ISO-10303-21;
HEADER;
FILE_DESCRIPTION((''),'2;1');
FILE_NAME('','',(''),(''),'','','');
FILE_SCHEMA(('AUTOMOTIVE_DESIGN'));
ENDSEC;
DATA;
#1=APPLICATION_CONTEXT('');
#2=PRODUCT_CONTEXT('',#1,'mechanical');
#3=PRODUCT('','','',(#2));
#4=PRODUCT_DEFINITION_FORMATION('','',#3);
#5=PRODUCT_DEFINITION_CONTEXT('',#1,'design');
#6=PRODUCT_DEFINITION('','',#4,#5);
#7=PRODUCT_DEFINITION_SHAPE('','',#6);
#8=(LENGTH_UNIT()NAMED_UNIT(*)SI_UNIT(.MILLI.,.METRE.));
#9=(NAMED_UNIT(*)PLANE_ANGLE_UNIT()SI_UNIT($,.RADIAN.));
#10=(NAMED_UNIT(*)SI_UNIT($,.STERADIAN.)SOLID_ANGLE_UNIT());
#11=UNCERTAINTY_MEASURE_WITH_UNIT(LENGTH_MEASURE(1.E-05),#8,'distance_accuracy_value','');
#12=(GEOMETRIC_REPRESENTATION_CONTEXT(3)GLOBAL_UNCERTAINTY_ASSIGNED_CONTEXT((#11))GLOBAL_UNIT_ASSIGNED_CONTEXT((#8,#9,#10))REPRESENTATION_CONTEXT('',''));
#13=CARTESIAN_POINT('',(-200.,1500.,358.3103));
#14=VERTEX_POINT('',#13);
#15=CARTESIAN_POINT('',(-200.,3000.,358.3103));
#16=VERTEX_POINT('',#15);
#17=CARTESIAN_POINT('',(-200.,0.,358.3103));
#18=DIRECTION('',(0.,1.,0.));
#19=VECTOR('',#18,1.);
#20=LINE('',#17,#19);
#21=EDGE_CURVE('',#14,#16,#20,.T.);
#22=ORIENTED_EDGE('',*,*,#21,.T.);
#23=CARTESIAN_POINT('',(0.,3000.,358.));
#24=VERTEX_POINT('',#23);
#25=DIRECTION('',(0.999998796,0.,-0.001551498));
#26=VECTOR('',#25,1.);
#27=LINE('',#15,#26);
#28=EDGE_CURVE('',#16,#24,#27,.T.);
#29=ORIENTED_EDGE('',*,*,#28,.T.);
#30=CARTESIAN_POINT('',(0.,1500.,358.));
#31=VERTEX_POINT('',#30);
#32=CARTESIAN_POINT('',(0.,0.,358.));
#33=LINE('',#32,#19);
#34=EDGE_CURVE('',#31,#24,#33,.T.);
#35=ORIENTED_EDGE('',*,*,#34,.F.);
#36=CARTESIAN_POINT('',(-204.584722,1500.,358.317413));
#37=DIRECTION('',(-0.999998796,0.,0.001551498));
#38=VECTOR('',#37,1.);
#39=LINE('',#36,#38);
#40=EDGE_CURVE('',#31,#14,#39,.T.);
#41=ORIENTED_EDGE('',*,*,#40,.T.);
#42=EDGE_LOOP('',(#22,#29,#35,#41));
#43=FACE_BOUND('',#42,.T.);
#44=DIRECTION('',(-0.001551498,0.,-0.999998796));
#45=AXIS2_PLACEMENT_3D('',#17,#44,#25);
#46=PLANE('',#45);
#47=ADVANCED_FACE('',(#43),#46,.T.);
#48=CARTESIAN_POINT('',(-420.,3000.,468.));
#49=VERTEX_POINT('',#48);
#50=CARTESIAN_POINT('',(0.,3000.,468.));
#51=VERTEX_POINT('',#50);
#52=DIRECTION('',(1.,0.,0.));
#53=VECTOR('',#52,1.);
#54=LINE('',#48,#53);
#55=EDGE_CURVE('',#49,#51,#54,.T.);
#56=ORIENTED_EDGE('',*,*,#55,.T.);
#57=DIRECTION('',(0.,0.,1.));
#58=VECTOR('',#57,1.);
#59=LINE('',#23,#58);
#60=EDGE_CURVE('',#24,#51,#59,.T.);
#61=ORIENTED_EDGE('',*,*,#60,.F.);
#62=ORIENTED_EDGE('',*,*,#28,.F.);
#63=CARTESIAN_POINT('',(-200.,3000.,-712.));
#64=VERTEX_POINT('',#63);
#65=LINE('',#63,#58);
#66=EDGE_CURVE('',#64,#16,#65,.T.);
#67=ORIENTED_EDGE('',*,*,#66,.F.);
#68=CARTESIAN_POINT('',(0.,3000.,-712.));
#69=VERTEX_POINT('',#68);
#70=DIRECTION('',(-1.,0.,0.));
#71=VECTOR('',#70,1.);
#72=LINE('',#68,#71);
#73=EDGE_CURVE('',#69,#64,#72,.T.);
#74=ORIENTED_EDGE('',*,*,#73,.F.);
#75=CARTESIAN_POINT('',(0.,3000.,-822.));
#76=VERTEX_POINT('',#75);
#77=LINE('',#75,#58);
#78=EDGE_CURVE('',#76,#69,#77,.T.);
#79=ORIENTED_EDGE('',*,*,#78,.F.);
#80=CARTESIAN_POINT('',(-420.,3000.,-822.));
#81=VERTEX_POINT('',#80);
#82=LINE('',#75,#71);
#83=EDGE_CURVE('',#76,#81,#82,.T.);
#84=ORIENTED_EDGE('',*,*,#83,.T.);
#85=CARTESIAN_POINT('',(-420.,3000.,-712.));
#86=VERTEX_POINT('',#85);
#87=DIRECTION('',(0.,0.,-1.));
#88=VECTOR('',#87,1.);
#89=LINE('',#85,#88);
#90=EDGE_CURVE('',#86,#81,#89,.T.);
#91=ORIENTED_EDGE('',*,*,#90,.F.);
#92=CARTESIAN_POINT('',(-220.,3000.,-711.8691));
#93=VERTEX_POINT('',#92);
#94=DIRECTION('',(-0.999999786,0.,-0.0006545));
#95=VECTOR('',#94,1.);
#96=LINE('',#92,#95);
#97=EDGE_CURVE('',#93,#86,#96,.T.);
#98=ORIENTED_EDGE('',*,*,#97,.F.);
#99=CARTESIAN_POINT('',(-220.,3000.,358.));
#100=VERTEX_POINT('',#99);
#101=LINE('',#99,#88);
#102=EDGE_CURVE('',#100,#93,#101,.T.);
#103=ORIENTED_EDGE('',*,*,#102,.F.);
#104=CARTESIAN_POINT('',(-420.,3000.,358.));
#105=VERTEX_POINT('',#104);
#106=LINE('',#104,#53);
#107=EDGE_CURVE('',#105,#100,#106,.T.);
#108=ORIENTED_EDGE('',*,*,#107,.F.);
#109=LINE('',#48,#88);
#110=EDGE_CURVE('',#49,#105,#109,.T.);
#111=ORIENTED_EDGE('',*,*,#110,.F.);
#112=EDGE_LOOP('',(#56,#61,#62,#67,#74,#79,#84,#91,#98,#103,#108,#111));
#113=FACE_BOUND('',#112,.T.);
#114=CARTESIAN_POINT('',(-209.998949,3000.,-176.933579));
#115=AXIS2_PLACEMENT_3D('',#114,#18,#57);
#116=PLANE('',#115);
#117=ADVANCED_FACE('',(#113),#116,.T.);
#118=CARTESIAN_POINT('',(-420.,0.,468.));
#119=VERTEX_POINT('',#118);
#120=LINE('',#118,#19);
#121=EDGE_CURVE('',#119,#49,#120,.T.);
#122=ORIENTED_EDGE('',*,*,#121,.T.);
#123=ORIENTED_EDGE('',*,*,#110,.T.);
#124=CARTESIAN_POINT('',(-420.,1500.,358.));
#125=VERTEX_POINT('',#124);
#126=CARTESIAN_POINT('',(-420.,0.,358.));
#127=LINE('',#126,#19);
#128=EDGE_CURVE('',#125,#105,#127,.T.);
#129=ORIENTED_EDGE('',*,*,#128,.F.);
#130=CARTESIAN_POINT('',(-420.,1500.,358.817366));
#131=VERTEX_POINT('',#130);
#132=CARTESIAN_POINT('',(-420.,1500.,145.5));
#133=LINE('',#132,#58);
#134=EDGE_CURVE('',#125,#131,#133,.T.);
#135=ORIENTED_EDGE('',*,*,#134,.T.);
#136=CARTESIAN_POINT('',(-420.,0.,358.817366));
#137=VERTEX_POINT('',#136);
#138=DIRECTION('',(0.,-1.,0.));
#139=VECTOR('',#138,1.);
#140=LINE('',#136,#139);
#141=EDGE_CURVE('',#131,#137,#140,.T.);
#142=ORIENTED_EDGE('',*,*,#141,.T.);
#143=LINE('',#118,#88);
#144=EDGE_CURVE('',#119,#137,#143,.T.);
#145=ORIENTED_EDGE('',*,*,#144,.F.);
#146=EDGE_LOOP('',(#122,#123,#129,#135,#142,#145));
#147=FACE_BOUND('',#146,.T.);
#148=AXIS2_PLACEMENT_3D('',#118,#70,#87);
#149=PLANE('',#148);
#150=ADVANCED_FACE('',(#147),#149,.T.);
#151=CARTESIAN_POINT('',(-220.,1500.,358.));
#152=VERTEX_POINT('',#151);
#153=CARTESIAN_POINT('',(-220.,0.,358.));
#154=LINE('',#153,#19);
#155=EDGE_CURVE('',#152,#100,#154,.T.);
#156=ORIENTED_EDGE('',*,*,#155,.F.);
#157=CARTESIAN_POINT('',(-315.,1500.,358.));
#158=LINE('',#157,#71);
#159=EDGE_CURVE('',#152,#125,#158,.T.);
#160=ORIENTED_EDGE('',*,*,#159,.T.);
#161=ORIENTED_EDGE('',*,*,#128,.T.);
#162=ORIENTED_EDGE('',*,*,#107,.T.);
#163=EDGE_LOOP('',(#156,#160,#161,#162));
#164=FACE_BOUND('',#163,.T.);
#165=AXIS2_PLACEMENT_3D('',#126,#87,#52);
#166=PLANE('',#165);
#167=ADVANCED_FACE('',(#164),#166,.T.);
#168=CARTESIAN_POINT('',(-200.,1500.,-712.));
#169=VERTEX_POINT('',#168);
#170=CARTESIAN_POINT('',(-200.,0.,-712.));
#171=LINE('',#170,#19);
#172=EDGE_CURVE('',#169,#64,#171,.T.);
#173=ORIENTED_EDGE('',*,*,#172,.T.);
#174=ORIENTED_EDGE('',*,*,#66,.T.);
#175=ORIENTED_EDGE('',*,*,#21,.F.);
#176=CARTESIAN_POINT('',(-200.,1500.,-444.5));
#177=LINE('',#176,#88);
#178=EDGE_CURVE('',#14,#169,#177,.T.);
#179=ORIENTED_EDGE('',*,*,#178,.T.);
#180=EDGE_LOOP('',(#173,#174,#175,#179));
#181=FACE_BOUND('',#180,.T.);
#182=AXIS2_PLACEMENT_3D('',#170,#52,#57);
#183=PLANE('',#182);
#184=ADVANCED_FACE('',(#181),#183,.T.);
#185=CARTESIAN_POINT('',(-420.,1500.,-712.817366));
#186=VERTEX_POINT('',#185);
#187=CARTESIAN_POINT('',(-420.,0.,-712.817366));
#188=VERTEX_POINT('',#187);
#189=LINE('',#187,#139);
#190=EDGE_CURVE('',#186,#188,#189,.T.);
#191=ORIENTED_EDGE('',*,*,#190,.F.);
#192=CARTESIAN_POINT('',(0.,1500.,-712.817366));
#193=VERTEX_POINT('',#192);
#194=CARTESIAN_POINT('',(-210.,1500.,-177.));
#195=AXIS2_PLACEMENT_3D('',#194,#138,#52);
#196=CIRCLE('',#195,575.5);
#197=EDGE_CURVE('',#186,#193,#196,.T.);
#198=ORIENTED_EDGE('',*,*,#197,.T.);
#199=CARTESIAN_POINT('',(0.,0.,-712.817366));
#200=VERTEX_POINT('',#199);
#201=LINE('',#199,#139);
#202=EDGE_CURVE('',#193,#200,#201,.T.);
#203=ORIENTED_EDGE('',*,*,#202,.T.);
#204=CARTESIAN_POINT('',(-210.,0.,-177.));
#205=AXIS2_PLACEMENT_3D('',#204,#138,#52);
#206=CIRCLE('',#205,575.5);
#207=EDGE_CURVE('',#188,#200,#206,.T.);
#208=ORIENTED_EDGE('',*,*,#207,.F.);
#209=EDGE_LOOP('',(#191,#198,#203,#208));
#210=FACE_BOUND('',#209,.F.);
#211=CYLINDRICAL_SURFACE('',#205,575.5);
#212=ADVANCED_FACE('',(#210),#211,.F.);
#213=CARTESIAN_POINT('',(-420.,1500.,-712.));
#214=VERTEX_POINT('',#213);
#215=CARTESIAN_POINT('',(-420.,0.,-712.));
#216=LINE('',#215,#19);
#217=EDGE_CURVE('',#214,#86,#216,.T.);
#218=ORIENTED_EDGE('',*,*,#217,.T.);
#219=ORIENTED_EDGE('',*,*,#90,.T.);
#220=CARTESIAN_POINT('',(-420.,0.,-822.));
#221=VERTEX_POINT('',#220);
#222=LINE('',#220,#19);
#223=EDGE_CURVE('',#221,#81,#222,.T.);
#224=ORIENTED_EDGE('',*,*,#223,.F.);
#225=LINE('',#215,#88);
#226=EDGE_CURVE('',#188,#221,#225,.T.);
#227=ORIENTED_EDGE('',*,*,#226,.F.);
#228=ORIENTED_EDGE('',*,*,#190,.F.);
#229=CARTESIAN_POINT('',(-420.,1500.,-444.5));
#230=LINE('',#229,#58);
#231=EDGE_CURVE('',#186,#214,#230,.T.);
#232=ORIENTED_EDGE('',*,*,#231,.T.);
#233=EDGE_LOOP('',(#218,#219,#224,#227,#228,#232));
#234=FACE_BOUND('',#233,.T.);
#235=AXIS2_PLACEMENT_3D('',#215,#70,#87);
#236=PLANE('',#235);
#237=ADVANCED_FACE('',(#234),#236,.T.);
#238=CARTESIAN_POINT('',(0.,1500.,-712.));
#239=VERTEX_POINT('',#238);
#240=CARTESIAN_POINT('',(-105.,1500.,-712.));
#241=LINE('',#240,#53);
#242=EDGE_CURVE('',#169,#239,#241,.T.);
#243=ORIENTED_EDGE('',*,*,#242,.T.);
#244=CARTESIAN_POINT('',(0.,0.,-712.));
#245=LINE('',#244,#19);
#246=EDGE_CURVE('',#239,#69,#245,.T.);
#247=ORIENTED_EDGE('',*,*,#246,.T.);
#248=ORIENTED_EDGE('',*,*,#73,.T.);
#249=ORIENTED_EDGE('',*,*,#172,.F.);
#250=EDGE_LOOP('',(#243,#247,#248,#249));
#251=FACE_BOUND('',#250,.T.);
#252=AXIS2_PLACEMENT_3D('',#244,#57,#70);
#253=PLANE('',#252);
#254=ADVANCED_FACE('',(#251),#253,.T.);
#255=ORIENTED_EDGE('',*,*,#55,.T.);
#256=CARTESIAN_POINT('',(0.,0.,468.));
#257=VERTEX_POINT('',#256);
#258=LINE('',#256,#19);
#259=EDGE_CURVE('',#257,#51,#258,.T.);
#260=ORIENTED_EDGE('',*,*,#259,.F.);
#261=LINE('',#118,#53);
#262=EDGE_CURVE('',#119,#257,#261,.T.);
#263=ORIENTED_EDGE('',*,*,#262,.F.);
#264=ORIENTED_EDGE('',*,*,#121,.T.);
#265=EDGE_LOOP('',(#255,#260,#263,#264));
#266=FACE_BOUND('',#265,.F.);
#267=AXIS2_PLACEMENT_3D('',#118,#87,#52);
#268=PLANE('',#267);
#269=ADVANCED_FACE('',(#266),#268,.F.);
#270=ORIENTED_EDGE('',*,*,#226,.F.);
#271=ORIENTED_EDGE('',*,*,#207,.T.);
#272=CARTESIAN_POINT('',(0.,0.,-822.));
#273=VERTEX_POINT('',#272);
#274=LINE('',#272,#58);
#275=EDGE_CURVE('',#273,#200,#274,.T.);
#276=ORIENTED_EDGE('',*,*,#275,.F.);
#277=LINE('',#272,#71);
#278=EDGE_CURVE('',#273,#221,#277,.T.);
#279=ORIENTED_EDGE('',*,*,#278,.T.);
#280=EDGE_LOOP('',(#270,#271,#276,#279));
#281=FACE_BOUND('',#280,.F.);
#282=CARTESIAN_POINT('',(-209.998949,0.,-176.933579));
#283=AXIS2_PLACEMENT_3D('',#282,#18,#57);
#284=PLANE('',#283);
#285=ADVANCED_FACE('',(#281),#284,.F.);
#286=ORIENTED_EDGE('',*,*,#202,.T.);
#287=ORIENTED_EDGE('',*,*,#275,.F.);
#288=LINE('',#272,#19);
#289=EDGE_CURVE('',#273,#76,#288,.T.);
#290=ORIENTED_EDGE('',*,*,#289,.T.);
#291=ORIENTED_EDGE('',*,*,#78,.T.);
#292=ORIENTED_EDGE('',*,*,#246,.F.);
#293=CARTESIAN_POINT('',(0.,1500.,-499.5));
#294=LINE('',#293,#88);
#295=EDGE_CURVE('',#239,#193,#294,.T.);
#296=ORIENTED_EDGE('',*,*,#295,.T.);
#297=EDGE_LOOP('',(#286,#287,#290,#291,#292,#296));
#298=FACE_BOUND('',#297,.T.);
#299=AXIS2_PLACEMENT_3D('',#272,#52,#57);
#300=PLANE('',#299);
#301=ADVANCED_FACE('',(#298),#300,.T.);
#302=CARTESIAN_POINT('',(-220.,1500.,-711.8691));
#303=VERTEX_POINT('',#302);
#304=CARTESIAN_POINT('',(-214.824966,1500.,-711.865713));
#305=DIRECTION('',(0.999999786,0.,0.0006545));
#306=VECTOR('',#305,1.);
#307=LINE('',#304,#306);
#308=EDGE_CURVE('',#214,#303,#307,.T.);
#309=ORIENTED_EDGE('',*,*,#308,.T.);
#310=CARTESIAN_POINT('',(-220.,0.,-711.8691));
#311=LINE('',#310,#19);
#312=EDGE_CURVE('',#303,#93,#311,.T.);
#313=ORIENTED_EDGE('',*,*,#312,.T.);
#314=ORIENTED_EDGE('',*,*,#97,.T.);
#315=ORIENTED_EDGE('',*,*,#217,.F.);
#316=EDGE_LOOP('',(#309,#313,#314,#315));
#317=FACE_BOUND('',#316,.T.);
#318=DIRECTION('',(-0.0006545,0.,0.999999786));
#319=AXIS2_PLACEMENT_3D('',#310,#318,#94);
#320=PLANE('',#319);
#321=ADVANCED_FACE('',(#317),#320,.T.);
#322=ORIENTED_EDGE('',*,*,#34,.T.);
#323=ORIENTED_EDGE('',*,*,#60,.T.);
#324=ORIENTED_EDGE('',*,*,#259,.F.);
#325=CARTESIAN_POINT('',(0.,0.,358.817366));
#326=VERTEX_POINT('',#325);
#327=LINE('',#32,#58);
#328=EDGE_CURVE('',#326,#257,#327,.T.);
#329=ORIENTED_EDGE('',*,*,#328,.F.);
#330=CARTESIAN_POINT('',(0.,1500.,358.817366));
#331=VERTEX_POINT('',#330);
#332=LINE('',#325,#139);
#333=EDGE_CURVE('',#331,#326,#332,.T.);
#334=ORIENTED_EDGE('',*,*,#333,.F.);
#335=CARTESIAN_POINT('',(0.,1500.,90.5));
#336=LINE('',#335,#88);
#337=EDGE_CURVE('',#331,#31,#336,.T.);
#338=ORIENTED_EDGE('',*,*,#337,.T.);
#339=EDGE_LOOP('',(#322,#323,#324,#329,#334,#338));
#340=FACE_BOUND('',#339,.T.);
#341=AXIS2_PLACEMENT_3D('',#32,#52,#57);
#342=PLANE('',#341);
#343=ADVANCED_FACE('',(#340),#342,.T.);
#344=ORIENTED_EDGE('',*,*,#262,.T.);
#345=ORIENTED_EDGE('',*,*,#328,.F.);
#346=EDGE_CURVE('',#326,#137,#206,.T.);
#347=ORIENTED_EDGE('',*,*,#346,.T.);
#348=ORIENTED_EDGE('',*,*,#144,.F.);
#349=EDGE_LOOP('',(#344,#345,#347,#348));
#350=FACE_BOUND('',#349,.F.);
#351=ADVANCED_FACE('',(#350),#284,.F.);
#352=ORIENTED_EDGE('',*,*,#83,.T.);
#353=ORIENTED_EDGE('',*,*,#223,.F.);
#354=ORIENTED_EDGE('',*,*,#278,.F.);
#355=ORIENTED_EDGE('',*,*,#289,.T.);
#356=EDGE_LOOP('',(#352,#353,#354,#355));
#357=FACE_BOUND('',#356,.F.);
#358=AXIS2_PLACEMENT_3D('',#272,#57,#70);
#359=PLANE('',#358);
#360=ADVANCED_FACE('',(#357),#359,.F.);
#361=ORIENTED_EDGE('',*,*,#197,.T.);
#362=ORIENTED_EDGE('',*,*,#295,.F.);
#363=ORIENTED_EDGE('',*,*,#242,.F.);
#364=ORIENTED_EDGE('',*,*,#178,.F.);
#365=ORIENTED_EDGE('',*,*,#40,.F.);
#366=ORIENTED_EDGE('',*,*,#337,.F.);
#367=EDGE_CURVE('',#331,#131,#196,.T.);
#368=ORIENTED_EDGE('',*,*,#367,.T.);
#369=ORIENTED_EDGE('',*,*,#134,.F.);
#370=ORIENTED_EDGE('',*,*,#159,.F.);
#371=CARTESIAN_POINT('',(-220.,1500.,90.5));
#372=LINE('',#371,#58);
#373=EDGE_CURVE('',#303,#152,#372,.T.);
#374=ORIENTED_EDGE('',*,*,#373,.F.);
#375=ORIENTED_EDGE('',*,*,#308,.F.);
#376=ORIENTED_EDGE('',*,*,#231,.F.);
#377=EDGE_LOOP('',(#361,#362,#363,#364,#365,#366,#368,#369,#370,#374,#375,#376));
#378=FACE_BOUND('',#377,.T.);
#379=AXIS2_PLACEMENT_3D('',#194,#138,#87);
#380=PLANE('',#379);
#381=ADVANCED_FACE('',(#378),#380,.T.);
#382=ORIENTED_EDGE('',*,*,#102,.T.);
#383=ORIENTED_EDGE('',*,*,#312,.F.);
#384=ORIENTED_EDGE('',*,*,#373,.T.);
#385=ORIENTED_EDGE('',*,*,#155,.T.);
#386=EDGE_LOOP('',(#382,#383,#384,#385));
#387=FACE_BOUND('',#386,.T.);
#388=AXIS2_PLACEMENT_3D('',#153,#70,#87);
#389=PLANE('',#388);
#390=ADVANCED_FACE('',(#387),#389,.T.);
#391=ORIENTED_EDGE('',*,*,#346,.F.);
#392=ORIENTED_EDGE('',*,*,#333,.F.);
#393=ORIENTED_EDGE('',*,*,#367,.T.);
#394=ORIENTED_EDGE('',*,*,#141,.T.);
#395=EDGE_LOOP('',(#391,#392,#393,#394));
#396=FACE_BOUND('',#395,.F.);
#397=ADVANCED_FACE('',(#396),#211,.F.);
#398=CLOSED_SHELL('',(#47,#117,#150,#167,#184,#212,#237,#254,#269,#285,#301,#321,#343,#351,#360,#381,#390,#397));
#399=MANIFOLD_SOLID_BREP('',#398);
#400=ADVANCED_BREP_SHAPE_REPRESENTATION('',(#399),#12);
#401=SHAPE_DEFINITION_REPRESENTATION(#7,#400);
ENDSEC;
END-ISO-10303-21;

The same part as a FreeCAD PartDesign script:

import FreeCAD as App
import Part
import Sketcher

V = App.Vector
Q = App.Units.Quantity


def add_polygon(sketch, points):
    """Adds a closed chain of lines whose ends are joined by coincident constraints."""
    first, n = sketch.GeometryCount, len(points)
    for a, b in zip(points, points[1:] + points[:1]):
        sketch.addGeometry(Part.LineSegment(App.Vector(*a, 0), App.Vector(*b, 0)), False)
    for i in range(n):
        sketch.addConstraint(Sketcher.Constraint("Coincident", first + i, 2, first + (i + 1) % n, 1))

doc = App.newDocument("Part")
body = doc.addObject("PartDesign::Body", "Body")

# Sketch on XZ plane
sketch1 = doc.addObject("Sketcher::SketchObject", "Sketch")
body.addObject(sketch1)
sketch1.AttachmentSupport = (doc.XZ_Plane, [""])
sketch1.MapMode = "FlatFace"
add_polygon(sketch1, [(-420, -822), (0, -822), (0, -712), (-200, -712), (-200, 358), (0, 358), (0, 468), (-420, 468), (-420, 358), (-220, 358), (-220, -712), (-420, -712)])  # lines 0-11
sketch1.addConstraint([
    Sketcher.Constraint("Horizontal", 0),
    Sketcher.Constraint("Vertical", 1),
    Sketcher.Constraint("Horizontal", 2),
    Sketcher.Constraint("Vertical", 3),
    Sketcher.Constraint("Vertical", 5),
    Sketcher.Constraint("Horizontal", 6),
    Sketcher.Constraint("Vertical", 7),
    Sketcher.Constraint("Horizontal", 8),
    Sketcher.Constraint("Vertical", 9),
    Sketcher.Constraint("Vertical", 11),
    Sketcher.Constraint("PointOnObject", 0, 2, -2),
    Sketcher.Constraint("PointOnObject", 4, 2, -2),
    Sketcher.Constraint("Horizontal", 4, 2, 7, 2),
    Sketcher.Constraint("Horizontal", 2, 2, 10, 2),
    Sketcher.Constraint("Vertical", 7, 2, 10, 2),
    Sketcher.Constraint("Equal", 2, 8),
    Sketcher.Constraint("Equal", 1, 5),
    Sketcher.Constraint("DistanceX", 0, 1, 0, 2, Q("420 mm")),
    Sketcher.Constraint("DistanceX", 2, 2, 2, 1, Q("200 mm")),
    Sketcher.Constraint("DistanceY", 1, 1, 1, 2, Q("110 mm")),
    Sketcher.Constraint("DistanceY", 0, 2, -1, 1, Q("822 mm")),
    Sketcher.Constraint("DistanceY", -1, 1, 4, 2, Q("358 mm")),
    Sketcher.Constraint("Angle", 4, Q("-0.089 deg")),
    Sketcher.Constraint("DistanceY", 9, 2, 9, 1, Q("1069.869 mm")),
])
pad1 = doc.addObject("PartDesign::Pad", "Pad")
body.addObject(pad1)
pad1.Profile = sketch1
pad1.Length = 3000
pad1.Reversed = True

# Sketch on XZ plane
sketch2 = doc.addObject("Sketcher::SketchObject", "Sketch001")
body.addObject(sketch2)
sketch2.AttachmentSupport = (doc.XZ_Plane, [""])
sketch2.MapMode = "FlatFace"
sketch2.addGeometry(Part.Circle(V(-210, -177, 0), V(0, 0, 1), 576), False)
sketch2.addConstraint([
    Sketcher.Constraint("Diameter", 0, Q("1151 mm")),
    Sketcher.Constraint("DistanceX", 0, 3, -1, 1, Q("210 mm")),
    Sketcher.Constraint("DistanceY", 0, 3, -1, 1, Q("177 mm")),
])
pocket1 = doc.addObject("PartDesign::Pocket", "Pocket")
body.addObject(pocket1)
pocket1.Profile = sketch2
pocket1.Length = 1500

doc.recompute()
